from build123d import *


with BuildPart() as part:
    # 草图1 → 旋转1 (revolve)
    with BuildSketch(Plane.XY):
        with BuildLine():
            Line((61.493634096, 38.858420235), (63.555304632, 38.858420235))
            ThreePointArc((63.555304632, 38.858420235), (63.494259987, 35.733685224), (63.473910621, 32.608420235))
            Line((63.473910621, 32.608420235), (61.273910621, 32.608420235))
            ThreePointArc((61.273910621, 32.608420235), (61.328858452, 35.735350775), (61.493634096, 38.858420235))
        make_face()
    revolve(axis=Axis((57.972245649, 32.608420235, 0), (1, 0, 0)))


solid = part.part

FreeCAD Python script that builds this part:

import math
import FreeCAD as App
import Part
import Sketcher
from FreeCAD import Vector

doc = App.newDocument("Part")
body = doc.addObject("PartDesign::Body", "Body")

sketch1 = body.newObject("Sketcher::SketchObject", "Sketch")
sketch1.AttachmentSupport = (doc.getObject("XY_Plane"), [""])
sketch1.MapMode = "FlatFace"
sketch1.addGeometry([
    Part.LineSegment(Vector(63.6, 38.9, 0), Vector(61.5, 38.9, 0)),
    Part.ArcOfCircle(Part.Circle(Vector(150.3, 32.6, 0), Vector(0, 0, 1), 89), math.radians(175.97), math.radians(180)),
    Part.LineSegment(Vector(61.3, 32.6, 0), Vector(63.5, 32.6, 0)),
    Part.ArcOfCircle(Part.Circle(Vector(303.5, 32.6, 0), Vector(0, 0, 1), 240), math.radians(178.51), math.radians(180)),
], False)
sketch1.addGeometry(Part.LineSegment(Vector(61.3, 32.6, 0), Vector(303.5, 32.6, 0)), True)
sketch1.addConstraint([
    Sketcher.Constraint("Coincident", 0, 2, 1, 1),
    Sketcher.Constraint("Coincident", 1, 2, 2, 1),
    Sketcher.Constraint("Coincident", 2, 2, 3, 2),
    Sketcher.Constraint("Coincident", 3, 1, 0, 1),
    Sketcher.Constraint("Horizontal", 0),
    Sketcher.Constraint("Horizontal", 2),
    Sketcher.Constraint("Horizontal", 4),
    Sketcher.Constraint("Coincident", 4, 1, 1, 2),
    Sketcher.Constraint("Coincident", 4, 2, 3, 3),
    Sketcher.Constraint("Horizontal", 1, 3, 3, 3),
    Sketcher.Constraint("Radius", 1, 89.0),
    Sketcher.Constraint("DistanceX", 2, 1, 2, 2, 2.2),
    Sketcher.Constraint("DistanceY", 1, 3, 0, 2, 6.25),
    Sketcher.Constraint("Radius", 3, 240.000005),
    Sketcher.Constraint("DistanceX", -1, 1, 1, 3, 150.27391),
    Sketcher.Constraint("DistanceY", -1, 1, 1, 3, 32.60842),
])
revolution = body.newObject("PartDesign::Revolution", "Revolution")
revolution.Profile = sketch1
revolution.ReferenceAxis = (sketch1, ["Axis0"])
revolution.Angle = 360

doc.recompute()
